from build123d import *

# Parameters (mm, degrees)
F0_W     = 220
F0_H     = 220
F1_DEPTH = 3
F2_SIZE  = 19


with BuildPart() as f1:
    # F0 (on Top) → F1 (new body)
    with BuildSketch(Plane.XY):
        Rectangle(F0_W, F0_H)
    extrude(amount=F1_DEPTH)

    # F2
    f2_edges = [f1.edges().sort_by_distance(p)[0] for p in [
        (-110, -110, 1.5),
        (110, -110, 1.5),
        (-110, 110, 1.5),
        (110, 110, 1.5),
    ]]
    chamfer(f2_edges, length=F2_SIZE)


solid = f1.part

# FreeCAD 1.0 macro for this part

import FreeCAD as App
import Part
import Sketcher

V = App.Vector
Q = App.Units.Quantity


def edges_at(feature, points):
    """Names of the edges that pass closest to the given points."""
    edges = feature.Shape.Edges
    near = lambda p: min(range(len(edges)), key=lambda i: edges[i].distToShape(Part.Vertex(*p))[0])
    return sorted({f"Edge{near(p) + 1}" for p in points})

doc = App.newDocument("Part")
body = doc.addObject("PartDesign::Body", "Body")

# Sketch on XY plane
sketch1 = body.newObject("Sketcher::SketchObject", "Sketch")
sketch1.AttachmentSupport = (doc.getObject("XY_Plane"), [""])
sketch1.MapMode = "FlatFace"
sketch1.addGeometry(Part.LineSegment(V(-110, 110, 0), V(-110, -110, 0)), False)
sketch1.addGeometry(Part.LineSegment(V(-110, -110, 0), V(110, -110, 0)), False)
sketch1.addGeometry(Part.LineSegment(V(110, -110, 0), V(110, 110, 0)), False)
sketch1.addGeometry(Part.LineSegment(V(110, 110, 0), V(-110, 110, 0)), False)
sketch1.addConstraint(Sketcher.Constraint("Coincident", 0, 2, 1, 1))
sketch1.addConstraint(Sketcher.Constraint("Coincident", 1, 2, 2, 1))
sketch1.addConstraint(Sketcher.Constraint("Coincident", 2, 2, 3, 1))
sketch1.addConstraint(Sketcher.Constraint("Coincident", 3, 2, 0, 1))
sketch1.addConstraint(Sketcher.Constraint("Vertical", 0))
sketch1.addConstraint(Sketcher.Constraint("Horizontal", 1))
sketch1.addConstraint(Sketcher.Constraint("Vertical", 2))
sketch1.addConstraint(Sketcher.Constraint("Horizontal", 3))
sketch1.addConstraint(Sketcher.Constraint("Symmetric", 0, 2, 2, 2, -1, 1))
sketch1.addConstraint(Sketcher.Constraint("Equal", 3, 0))
sketch1.addConstraint(Sketcher.Constraint("DistanceX", 1, 1, 1, 2, Q("220 mm")))
pad1 = body.newObject("PartDesign::Pad", "Pad")
pad1.Profile = sketch1
pad1.Length = 3
doc.recompute()

chamfer = body.newObject("PartDesign::Chamfer", "Chamfer")
chamfer.Base = (pad1, edges_at(pad1, [
    (-110, -110, 1.5),
    (110, -110, 1.5),
    (-110, 110, 1.5),
    (110, 110, 1.5),
]))
chamfer.Size = 19

doc.recompute()
